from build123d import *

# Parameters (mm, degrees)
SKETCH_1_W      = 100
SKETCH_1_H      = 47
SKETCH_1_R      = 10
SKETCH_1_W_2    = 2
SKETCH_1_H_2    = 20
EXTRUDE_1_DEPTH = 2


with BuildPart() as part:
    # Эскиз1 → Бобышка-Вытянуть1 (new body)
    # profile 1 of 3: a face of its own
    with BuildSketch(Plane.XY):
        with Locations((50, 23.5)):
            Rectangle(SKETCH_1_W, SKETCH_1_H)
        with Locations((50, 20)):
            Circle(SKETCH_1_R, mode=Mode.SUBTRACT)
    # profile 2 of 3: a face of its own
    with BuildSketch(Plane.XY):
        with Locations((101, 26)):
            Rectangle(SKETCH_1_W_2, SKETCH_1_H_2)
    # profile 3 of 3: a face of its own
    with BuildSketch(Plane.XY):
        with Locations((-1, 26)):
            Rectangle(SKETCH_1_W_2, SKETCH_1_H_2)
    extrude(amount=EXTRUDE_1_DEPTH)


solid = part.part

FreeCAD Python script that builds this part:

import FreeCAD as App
import Part
import Sketcher

doc = App.newDocument("Part")
body = doc.addObject("PartDesign::Body", "Body")

# Sketch on XY plane
sketch1 = body.newObject("Sketcher::SketchObject", "Sketch")
sketch1.AttachmentSupport = (doc.getObject("XY_Plane"), [""])
sketch1.MapMode = "FlatFace"
sketch1.addGeometry(Part.LineSegment(App.Vector(0, 16, 0), App.Vector(0, 0, 0)), False)
sketch1.addGeometry(Part.LineSegment(App.Vector(0, 0, 0), App.Vector(100, 0, 0)), False)
sketch1.addGeometry(Part.LineSegment(App.Vector(100, 0, 0), App.Vector(100, 16, 0)), False)
sketch1.addGeometry(Part.LineSegment(App.Vector(100, 16, 0), App.Vector(102, 16, 0)), False)
sketch1.addGeometry(Part.LineSegment(App.Vector(102, 16, 0), App.Vector(102, 36, 0)), False)
sketch1.addGeometry(Part.LineSegment(App.Vector(102, 36, 0), App.Vector(100, 36, 0)), False)
sketch1.addGeometry(Part.LineSegment(App.Vector(100, 36, 0), App.Vector(100, 47, 0)), False)
sketch1.addGeometry(Part.LineSegment(App.Vector(100, 47, 0), App.Vector(0, 47, 0)), False)
sketch1.addGeometry(Part.LineSegment(App.Vector(0, 47, 0), App.Vector(0, 36, 0)), False)
sketch1.addGeometry(Part.LineSegment(App.Vector(0, 36, 0), App.Vector(-2, 36, 0)), False)
sketch1.addGeometry(Part.LineSegment(App.Vector(-2, 36, 0), App.Vector(-2, 16, 0)), False)
sketch1.addGeometry(Part.LineSegment(App.Vector(-2, 16, 0), App.Vector(0, 16, 0)), False)
sketch1.addGeometry(Part.Circle(App.Vector(50, 20, 0), App.Vector(0, 0, 1), 10), False)
sketch1.addConstraint(Sketcher.Constraint("Coincident", 0, 2, 1, 1))
sketch1.addConstraint(Sketcher.Constraint("Coincident", 1, 2, 2, 1))
sketch1.addConstraint(Sketcher.Constraint("Coincident", 2, 2, 3, 1))
sketch1.addConstraint(Sketcher.Constraint("Coincident", 3, 2, 4, 1))
sketch1.addConstraint(Sketcher.Constraint("Coincident", 4, 2, 5, 1))
sketch1.addConstraint(Sketcher.Constraint("Coincident", 5, 2, 6, 1))
sketch1.addConstraint(Sketcher.Constraint("Coincident", 6, 2, 7, 1))
sketch1.addConstraint(Sketcher.Constraint("Coincident", 7, 2, 8, 1))
sketch1.addConstraint(Sketcher.Constraint("Coincident", 8, 2, 9, 1))
sketch1.addConstraint(Sketcher.Constraint("Coincident", 9, 2, 10, 1))
sketch1.addConstraint(Sketcher.Constraint("Coincident", 10, 2, 11, 1))
sketch1.addConstraint(Sketcher.Constraint("Coincident", 11, 2, 0, 1))
sketch1.addConstraint(Sketcher.Constraint("Vertical", 0))
sketch1.addConstraint(Sketcher.Constraint("Horizontal", 1))
sketch1.addConstraint(Sketcher.Constraint("Vertical", 2))
sketch1.addConstraint(Sketcher.Constraint("Horizontal", 3))
sketch1.addConstraint(Sketcher.Constraint("Vertical", 4))
sketch1.addConstraint(Sketcher.Constraint("Horizontal", 5))
sketch1.addConstraint(Sketcher.Constraint("Vertical", 6))
sketch1.addConstraint(Sketcher.Constraint("Horizontal", 7))
sketch1.addConstraint(Sketcher.Constraint("Vertical", 8))
sketch1.addConstraint(Sketcher.Constraint("Horizontal", 9))
sketch1.addConstraint(Sketcher.Constraint("Vertical", 10))
sketch1.addConstraint(Sketcher.Constraint("Horizontal", 11))
sketch1.addConstraint(Sketcher.Constraint("Coincident", 0, 2, -1, 1))
sketch1.addConstraint(Sketcher.Constraint("PointOnObject", 7, 2, -2))
sketch1.addConstraint(Sketcher.Constraint("Horizontal", 5, 2, 8, 2))
sketch1.addConstraint(Sketcher.Constraint("Horizontal", 3, 2, 10, 2))
sketch1.addConstraint(Sketcher.Constraint("Vertical", 2, 2, 5, 2))
sketch1.addConstraint(Sketcher.Constraint("Equal", 5, 9))
sketch1.addConstraint(Sketcher.Constraint("Diameter", 12, 20.0))
sketch1.addConstraint(Sketcher.Constraint("DistanceX", 1, 1, 1, 2, 100.0))
sketch1.addConstraint(Sketcher.Constraint("DistanceX", 3, 1, 3, 2, 2.0))
sketch1.addConstraint(Sketcher.Constraint("DistanceY", 0, 2, 0, 1, 16.0))
sketch1.addConstraint(Sketcher.Constraint("DistanceY", 4, 1, 4, 2, 20.0))
sketch1.addConstraint(Sketcher.Constraint("DistanceY", 6, 1, 6, 2, 11.0))
sketch1.addConstraint(Sketcher.Constraint("DistanceX", -1, 1, 12, 3, 50.0))
sketch1.addConstraint(Sketcher.Constraint("DistanceY", -1, 1, 12, 3, 20.0))
pad1 = body.newObject("PartDesign::Pad", "Pad")
pad1.Profile = sketch1
pad1.Length = 2

doc.recompute()
